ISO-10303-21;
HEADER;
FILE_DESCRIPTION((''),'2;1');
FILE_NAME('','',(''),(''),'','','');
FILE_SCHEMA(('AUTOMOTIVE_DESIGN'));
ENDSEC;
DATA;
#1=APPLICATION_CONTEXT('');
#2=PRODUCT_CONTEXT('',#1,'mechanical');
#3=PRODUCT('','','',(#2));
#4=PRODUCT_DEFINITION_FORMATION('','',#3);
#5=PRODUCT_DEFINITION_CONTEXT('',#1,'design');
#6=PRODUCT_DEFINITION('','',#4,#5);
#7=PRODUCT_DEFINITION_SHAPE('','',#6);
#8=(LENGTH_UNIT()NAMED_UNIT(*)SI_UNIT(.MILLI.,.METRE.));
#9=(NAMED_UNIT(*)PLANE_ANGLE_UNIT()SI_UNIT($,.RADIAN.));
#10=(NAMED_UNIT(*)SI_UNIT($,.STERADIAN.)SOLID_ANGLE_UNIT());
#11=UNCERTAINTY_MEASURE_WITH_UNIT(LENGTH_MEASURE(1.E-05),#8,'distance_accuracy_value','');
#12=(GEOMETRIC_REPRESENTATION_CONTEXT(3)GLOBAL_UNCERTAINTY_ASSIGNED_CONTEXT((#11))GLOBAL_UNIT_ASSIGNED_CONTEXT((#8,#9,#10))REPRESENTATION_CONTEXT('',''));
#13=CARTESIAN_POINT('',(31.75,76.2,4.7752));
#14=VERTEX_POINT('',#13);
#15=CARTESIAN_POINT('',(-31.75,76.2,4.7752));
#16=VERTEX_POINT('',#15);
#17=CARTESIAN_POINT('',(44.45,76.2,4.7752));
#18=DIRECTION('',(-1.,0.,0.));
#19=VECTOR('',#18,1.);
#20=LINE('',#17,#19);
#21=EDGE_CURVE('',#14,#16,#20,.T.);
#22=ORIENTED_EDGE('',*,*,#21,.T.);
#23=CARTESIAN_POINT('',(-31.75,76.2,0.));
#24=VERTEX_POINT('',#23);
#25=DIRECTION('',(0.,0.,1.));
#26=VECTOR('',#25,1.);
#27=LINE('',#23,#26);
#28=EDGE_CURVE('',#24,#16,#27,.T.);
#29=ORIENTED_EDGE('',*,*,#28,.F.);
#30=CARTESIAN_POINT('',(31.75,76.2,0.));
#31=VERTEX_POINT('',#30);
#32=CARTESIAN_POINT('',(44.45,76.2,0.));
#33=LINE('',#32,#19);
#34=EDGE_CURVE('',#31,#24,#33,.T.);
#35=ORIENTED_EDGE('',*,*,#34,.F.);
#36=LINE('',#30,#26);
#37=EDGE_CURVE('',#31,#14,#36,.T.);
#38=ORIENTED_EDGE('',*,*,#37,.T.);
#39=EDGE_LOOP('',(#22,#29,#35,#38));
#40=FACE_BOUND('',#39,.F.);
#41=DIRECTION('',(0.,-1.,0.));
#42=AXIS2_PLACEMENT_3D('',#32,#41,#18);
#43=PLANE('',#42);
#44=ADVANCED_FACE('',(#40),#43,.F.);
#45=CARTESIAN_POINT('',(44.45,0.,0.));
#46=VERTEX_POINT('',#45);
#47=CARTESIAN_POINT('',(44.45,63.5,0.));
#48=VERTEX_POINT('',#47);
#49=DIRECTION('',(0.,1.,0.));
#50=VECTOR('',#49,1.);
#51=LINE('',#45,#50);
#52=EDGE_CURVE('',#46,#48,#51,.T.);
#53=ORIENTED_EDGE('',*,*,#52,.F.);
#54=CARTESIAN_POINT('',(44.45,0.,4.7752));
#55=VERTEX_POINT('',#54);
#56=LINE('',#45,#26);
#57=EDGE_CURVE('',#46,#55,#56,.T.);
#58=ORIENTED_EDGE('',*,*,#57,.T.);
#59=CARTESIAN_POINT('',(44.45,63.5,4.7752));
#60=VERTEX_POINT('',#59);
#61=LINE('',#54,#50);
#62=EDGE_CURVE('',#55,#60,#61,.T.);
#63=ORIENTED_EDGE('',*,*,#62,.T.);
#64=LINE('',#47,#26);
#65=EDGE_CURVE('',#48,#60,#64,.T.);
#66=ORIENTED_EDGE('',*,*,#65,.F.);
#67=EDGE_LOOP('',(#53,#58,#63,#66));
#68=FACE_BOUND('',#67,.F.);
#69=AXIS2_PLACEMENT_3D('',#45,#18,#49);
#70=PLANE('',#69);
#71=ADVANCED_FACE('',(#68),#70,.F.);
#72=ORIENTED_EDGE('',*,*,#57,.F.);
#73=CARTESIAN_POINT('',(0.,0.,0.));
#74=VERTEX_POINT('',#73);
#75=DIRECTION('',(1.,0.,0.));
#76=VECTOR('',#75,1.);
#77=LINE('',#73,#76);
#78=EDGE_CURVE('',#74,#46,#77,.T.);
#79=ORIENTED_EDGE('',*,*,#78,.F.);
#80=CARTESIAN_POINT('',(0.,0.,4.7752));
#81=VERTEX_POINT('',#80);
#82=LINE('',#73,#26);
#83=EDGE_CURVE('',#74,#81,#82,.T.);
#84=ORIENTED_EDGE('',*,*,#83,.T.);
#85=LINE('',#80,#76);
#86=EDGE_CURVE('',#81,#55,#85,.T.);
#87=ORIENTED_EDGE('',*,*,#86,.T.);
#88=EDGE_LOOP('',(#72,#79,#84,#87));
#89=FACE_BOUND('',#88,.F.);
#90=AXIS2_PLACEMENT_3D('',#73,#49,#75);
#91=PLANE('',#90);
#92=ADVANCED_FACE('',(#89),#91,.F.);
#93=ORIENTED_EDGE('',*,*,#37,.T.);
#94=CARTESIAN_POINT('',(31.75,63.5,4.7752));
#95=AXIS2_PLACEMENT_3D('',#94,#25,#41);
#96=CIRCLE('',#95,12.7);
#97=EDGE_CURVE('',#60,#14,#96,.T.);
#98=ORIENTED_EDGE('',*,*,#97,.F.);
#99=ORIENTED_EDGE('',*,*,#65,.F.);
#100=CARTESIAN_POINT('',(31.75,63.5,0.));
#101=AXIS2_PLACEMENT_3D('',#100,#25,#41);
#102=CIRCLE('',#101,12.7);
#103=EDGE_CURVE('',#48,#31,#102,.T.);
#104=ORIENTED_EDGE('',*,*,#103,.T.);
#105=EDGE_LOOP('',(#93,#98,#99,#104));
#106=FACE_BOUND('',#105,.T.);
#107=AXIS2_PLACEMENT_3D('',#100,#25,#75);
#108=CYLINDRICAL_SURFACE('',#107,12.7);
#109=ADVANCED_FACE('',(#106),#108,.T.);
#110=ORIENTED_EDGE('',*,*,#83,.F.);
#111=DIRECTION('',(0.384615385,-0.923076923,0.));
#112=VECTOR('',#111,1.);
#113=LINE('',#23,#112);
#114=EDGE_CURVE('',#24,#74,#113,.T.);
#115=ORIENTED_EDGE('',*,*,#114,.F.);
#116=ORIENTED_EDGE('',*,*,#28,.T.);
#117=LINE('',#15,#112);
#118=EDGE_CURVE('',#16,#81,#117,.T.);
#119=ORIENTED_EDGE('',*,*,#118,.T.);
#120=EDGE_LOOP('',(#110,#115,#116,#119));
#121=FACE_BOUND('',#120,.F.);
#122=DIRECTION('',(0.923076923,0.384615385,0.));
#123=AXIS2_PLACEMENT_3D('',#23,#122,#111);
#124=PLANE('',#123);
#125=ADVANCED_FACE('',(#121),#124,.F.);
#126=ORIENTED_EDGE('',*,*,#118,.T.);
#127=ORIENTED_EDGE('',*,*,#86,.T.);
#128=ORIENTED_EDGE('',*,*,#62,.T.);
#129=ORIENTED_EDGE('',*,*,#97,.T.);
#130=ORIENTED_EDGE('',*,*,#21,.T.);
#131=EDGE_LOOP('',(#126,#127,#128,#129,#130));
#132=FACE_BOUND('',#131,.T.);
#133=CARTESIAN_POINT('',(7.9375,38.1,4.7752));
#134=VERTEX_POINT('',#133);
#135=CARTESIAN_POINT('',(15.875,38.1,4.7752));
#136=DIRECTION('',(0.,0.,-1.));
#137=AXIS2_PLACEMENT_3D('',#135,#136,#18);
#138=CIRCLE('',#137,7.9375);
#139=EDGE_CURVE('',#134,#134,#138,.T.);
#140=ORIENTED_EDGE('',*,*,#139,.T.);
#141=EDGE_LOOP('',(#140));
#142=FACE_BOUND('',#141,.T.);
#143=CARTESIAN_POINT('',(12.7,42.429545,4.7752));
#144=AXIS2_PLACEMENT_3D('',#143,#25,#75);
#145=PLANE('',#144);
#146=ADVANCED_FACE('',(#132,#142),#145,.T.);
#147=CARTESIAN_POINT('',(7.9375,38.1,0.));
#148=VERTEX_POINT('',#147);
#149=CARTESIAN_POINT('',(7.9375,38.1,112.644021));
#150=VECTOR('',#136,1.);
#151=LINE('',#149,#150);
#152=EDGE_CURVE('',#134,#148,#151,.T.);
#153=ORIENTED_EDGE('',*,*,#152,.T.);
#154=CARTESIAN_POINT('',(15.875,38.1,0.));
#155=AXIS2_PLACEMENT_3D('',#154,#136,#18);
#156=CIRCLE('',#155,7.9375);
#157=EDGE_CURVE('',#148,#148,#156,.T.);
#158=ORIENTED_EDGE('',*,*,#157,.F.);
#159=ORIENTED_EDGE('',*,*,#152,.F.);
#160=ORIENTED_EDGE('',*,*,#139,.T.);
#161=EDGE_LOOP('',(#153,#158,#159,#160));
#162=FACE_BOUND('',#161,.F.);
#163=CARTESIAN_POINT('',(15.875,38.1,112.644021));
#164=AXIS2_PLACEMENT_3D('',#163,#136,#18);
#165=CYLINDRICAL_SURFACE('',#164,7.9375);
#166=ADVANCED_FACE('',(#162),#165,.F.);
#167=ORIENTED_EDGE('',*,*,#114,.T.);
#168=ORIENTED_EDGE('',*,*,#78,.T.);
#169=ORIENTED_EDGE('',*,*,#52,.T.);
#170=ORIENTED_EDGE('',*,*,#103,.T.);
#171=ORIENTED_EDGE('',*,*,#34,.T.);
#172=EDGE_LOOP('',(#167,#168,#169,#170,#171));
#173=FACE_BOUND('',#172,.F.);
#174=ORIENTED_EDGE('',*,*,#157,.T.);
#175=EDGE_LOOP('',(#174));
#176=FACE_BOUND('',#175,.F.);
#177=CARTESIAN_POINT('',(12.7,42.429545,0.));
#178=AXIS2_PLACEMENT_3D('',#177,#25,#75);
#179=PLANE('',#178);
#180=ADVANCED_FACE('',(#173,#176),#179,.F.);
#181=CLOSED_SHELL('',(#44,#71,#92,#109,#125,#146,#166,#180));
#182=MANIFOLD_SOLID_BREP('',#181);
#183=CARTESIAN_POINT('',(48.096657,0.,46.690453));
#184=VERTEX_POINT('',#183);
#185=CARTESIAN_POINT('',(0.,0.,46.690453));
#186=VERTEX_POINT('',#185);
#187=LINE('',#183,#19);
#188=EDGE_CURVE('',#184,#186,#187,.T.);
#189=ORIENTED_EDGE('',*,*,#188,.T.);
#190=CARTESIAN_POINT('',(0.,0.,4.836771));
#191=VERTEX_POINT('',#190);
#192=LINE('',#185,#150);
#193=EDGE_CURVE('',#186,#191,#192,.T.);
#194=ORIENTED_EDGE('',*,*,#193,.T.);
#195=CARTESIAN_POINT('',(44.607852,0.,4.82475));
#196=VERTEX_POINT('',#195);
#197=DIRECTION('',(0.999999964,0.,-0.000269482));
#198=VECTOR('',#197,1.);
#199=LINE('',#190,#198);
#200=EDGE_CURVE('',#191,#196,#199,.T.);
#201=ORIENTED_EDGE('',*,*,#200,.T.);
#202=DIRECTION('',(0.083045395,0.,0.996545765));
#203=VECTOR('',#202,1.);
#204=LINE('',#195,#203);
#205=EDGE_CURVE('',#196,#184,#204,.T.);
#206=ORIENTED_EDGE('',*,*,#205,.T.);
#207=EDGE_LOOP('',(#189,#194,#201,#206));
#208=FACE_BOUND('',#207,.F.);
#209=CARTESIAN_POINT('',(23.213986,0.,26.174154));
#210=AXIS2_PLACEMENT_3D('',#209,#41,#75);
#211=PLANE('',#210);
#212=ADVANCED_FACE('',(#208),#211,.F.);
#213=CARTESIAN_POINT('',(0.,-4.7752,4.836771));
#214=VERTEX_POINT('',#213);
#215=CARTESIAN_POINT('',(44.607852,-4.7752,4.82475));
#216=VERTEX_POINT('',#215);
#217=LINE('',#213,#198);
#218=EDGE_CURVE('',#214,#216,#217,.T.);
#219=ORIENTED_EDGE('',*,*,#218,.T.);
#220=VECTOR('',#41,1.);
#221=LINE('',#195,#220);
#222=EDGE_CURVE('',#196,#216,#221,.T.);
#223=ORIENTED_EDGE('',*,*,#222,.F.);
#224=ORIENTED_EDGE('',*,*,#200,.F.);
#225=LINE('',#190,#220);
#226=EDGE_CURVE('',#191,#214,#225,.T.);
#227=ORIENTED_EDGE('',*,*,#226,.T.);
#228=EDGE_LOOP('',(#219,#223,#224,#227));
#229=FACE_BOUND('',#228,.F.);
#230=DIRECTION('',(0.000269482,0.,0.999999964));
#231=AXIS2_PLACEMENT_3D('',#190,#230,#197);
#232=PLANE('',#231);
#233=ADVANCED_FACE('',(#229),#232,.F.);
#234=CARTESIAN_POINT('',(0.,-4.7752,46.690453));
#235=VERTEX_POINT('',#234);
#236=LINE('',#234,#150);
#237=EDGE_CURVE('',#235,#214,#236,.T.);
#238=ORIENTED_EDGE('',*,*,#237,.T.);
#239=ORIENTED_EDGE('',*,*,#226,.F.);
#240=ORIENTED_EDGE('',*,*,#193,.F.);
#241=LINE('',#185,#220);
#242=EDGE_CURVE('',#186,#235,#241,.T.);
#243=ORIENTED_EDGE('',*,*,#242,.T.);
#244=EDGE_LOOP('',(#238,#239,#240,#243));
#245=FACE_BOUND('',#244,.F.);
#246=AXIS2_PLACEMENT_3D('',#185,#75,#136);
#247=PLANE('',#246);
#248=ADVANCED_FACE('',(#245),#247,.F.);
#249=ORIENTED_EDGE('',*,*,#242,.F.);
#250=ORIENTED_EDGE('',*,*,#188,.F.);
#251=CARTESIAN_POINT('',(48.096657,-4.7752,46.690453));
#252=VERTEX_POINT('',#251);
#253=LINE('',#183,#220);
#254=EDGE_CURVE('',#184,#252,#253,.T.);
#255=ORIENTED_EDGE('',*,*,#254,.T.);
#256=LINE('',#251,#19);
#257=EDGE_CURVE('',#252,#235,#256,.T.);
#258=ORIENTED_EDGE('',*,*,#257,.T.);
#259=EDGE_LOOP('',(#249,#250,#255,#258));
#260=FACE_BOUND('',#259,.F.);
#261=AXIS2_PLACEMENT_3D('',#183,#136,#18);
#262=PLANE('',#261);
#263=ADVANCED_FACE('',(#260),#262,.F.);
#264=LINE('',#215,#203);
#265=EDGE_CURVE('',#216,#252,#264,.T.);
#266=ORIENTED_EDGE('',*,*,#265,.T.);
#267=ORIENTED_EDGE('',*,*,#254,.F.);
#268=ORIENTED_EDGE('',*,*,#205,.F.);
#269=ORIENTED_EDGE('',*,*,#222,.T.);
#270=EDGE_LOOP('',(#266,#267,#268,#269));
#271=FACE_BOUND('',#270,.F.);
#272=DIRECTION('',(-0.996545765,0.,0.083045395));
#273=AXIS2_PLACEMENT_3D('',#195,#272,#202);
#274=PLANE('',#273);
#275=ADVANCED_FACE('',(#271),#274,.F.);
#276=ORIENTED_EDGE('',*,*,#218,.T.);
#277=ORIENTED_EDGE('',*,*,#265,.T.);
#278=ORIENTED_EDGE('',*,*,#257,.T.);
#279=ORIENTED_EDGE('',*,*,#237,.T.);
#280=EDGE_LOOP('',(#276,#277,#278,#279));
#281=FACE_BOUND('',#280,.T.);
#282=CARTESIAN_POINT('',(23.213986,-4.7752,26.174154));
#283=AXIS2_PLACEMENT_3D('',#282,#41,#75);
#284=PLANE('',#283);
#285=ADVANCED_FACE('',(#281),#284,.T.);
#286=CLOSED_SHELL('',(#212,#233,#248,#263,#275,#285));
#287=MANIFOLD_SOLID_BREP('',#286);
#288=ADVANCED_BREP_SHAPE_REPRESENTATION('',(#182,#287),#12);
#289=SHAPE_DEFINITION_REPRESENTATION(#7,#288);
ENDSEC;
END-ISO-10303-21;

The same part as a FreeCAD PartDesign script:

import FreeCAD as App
import Part
import Sketcher
from FreeCAD import Vector
Q = App.Units.Quantity


def edges_at(feature, points):
    """Names of the edges that pass closest to the given points."""
    edges = feature.Shape.Edges
    near = lambda p: min(range(len(edges)), key=lambda i: edges[i].distToShape(Part.Vertex(*p))[0])
    return sorted({f"Edge{near(p) + 1}" for p in points})


def add_polygon(sketch, points):
    """Adds a closed chain of lines whose ends are joined by coincident constraints."""
    first, n = sketch.GeometryCount, len(points)
    for a, b in zip(points, points[1:] + points[:1]):
        sketch.addGeometry(Part.LineSegment(App.Vector(*a, 0), App.Vector(*b, 0)), False)
    for i in range(n):
        sketch.addConstraint(Sketcher.Constraint("Coincident", first + i, 2, first + (i + 1) % n, 1))

doc = App.newDocument("Part")
params = doc.addObject("Spreadsheet::Sheet", "Params")
for row, (alias, value) in enumerate([
    ("sketch1_width", "3 in"),
    ("sketch1_width2", "1.75 in"),
    ("pad1_length", "0.188 in"),
    ("fillet_radius", "0.5 in"),
    ("sketch2_diameter", "0.625 in"),
    ("hole_diameter", "0.625 in"),
    ("pad2_length", "0.188 in"),
], start=1):
    params.set(f"A{row}", alias)
    params.set(f"B{row}", "=" + value)
    params.setAlias(f"B{row}", alias)

body = doc.addObject("PartDesign::Body", "Body")

# Sketch on XY plane
sketch1 = doc.addObject("Sketcher::SketchObject", "Sketch")
body.addObject(sketch1)
sketch1.AttachmentSupport = (doc.XY_Plane, [""])
sketch1.MapMode = "FlatFace"
add_polygon(sketch1, [(-32, 76), (0, 0), (44, 0), (44, 76)])  # lines 0-3
sketch1.addConstraint(Sketcher.Constraint("Horizontal", 1))
sketch1.addConstraint(Sketcher.Constraint("Vertical", 2))
sketch1.addConstraint(Sketcher.Constraint("Horizontal", 3))
sketch1.addConstraint(Sketcher.Constraint("Coincident", 0, 2, -1, 1))
sketch1.addConstraint(Sketcher.Constraint("Equal", 3, 2))
sketch1.addConstraint(Sketcher.Constraint("DistanceX", 3, 2, 3, 1, Q("3 in")))
sketch1.addConstraint(Sketcher.Constraint("DistanceX", 1, 1, 1, 2, Q("1.75 in")))
sketch1.setExpression("Constraints[9]", "Params.sketch1_width")
sketch1.setExpression("Constraints[10]", "Params.sketch1_width2")
pad1 = doc.addObject("PartDesign::Pad", "Pad")
body.addObject(pad1)
pad1.Profile = sketch1
pad1.setExpression("Length", "Params.pad1_length")
doc.recompute()

fillet = doc.addObject("PartDesign::Fillet", "Fillet")
body.addObject(fillet)
fillet.Base = (pad1, edges_at(pad1, [(44.45, 76.2, 2.388)]))
fillet.setExpression("Radius", "Params.fillet_radius")

# Sketch on XY plane
sketch2 = doc.addObject("Sketcher::SketchObject", "Sketch001")
body.addObject(sketch2)
sketch2.AttachmentSupport = (doc.XY_Plane, [""])
sketch2.MapMode = "FlatFace"
sketch2.AttachmentOffset = App.Placement(Vector(0, 0, 0.188 * 25.4), App.Rotation())
sketch2.addGeometry(Part.Circle(Vector(16, 38, 0), Vector(0, 0, 1), 8), False)
sketch2.addConstraint(Sketcher.Constraint("Diameter", 0, Q("0.625 in")))
sketch2.addConstraint(Sketcher.Constraint("DistanceY", -1, 1, 0, 3, Q("1.5 in")))
sketch2.addConstraint(Sketcher.Constraint("DistanceX", -1, 1, 0, 3, Q("0.625 in")))
sketch2.setExpression("Constraints[0]", "Params.sketch2_diameter")
doc.recompute()
hole = doc.addObject("PartDesign::Hole", "Hole")
body.addObject(hole)
hole.Profile = sketch2
hole.ThreadType = "None"
hole.setExpression("Diameter", "Params.hole_diameter")
hole.DepthType = "ThroughAll"
body2 = doc.addObject("PartDesign::Body", "Body001")

# Sketch on XZ plane
sketch3 = doc.addObject("Sketcher::SketchObject", "Sketch002")
body2.addObject(sketch3)
sketch3.AttachmentSupport = (doc.getObject("XZ_Plane001"), [""])
sketch3.MapMode = "FlatFace"
add_polygon(sketch3, [(0, 47), (0, 5), (45, 5), (48, 47)])  # lines 0-3
sketch3.addConstraint(Sketcher.Constraint("Vertical", 0))
sketch3.addConstraint(Sketcher.Constraint("Horizontal", 3))
sketch3.addConstraint(Sketcher.Constraint("PointOnObject", 0, 2, -2))
sketch3.addConstraint(Sketcher.Constraint("Distance", 2, Q("42.010818 mm")))
sketch3.addConstraint(Sketcher.Constraint("DistanceX", 3, 2, 3, 1, Q("48.096657 mm")))
sketch3.addConstraint(Sketcher.Constraint("DistanceY", 0, 2, 0, 1, Q("41.853682 mm")))
sketch3.addConstraint(Sketcher.Constraint("DistanceY", -1, 1, 0, 2, Q("4.836771 mm")))
sketch3.addConstraint(Sketcher.Constraint("DistanceY", -1, 1, 1, 2, Q("4.82475 mm")))
pad2 = doc.addObject("PartDesign::Pad", "Pad001")
body2.addObject(pad2)
pad2.Profile = sketch3
pad2.setExpression("Length", "Params.pad2_length")

doc.recompute()
